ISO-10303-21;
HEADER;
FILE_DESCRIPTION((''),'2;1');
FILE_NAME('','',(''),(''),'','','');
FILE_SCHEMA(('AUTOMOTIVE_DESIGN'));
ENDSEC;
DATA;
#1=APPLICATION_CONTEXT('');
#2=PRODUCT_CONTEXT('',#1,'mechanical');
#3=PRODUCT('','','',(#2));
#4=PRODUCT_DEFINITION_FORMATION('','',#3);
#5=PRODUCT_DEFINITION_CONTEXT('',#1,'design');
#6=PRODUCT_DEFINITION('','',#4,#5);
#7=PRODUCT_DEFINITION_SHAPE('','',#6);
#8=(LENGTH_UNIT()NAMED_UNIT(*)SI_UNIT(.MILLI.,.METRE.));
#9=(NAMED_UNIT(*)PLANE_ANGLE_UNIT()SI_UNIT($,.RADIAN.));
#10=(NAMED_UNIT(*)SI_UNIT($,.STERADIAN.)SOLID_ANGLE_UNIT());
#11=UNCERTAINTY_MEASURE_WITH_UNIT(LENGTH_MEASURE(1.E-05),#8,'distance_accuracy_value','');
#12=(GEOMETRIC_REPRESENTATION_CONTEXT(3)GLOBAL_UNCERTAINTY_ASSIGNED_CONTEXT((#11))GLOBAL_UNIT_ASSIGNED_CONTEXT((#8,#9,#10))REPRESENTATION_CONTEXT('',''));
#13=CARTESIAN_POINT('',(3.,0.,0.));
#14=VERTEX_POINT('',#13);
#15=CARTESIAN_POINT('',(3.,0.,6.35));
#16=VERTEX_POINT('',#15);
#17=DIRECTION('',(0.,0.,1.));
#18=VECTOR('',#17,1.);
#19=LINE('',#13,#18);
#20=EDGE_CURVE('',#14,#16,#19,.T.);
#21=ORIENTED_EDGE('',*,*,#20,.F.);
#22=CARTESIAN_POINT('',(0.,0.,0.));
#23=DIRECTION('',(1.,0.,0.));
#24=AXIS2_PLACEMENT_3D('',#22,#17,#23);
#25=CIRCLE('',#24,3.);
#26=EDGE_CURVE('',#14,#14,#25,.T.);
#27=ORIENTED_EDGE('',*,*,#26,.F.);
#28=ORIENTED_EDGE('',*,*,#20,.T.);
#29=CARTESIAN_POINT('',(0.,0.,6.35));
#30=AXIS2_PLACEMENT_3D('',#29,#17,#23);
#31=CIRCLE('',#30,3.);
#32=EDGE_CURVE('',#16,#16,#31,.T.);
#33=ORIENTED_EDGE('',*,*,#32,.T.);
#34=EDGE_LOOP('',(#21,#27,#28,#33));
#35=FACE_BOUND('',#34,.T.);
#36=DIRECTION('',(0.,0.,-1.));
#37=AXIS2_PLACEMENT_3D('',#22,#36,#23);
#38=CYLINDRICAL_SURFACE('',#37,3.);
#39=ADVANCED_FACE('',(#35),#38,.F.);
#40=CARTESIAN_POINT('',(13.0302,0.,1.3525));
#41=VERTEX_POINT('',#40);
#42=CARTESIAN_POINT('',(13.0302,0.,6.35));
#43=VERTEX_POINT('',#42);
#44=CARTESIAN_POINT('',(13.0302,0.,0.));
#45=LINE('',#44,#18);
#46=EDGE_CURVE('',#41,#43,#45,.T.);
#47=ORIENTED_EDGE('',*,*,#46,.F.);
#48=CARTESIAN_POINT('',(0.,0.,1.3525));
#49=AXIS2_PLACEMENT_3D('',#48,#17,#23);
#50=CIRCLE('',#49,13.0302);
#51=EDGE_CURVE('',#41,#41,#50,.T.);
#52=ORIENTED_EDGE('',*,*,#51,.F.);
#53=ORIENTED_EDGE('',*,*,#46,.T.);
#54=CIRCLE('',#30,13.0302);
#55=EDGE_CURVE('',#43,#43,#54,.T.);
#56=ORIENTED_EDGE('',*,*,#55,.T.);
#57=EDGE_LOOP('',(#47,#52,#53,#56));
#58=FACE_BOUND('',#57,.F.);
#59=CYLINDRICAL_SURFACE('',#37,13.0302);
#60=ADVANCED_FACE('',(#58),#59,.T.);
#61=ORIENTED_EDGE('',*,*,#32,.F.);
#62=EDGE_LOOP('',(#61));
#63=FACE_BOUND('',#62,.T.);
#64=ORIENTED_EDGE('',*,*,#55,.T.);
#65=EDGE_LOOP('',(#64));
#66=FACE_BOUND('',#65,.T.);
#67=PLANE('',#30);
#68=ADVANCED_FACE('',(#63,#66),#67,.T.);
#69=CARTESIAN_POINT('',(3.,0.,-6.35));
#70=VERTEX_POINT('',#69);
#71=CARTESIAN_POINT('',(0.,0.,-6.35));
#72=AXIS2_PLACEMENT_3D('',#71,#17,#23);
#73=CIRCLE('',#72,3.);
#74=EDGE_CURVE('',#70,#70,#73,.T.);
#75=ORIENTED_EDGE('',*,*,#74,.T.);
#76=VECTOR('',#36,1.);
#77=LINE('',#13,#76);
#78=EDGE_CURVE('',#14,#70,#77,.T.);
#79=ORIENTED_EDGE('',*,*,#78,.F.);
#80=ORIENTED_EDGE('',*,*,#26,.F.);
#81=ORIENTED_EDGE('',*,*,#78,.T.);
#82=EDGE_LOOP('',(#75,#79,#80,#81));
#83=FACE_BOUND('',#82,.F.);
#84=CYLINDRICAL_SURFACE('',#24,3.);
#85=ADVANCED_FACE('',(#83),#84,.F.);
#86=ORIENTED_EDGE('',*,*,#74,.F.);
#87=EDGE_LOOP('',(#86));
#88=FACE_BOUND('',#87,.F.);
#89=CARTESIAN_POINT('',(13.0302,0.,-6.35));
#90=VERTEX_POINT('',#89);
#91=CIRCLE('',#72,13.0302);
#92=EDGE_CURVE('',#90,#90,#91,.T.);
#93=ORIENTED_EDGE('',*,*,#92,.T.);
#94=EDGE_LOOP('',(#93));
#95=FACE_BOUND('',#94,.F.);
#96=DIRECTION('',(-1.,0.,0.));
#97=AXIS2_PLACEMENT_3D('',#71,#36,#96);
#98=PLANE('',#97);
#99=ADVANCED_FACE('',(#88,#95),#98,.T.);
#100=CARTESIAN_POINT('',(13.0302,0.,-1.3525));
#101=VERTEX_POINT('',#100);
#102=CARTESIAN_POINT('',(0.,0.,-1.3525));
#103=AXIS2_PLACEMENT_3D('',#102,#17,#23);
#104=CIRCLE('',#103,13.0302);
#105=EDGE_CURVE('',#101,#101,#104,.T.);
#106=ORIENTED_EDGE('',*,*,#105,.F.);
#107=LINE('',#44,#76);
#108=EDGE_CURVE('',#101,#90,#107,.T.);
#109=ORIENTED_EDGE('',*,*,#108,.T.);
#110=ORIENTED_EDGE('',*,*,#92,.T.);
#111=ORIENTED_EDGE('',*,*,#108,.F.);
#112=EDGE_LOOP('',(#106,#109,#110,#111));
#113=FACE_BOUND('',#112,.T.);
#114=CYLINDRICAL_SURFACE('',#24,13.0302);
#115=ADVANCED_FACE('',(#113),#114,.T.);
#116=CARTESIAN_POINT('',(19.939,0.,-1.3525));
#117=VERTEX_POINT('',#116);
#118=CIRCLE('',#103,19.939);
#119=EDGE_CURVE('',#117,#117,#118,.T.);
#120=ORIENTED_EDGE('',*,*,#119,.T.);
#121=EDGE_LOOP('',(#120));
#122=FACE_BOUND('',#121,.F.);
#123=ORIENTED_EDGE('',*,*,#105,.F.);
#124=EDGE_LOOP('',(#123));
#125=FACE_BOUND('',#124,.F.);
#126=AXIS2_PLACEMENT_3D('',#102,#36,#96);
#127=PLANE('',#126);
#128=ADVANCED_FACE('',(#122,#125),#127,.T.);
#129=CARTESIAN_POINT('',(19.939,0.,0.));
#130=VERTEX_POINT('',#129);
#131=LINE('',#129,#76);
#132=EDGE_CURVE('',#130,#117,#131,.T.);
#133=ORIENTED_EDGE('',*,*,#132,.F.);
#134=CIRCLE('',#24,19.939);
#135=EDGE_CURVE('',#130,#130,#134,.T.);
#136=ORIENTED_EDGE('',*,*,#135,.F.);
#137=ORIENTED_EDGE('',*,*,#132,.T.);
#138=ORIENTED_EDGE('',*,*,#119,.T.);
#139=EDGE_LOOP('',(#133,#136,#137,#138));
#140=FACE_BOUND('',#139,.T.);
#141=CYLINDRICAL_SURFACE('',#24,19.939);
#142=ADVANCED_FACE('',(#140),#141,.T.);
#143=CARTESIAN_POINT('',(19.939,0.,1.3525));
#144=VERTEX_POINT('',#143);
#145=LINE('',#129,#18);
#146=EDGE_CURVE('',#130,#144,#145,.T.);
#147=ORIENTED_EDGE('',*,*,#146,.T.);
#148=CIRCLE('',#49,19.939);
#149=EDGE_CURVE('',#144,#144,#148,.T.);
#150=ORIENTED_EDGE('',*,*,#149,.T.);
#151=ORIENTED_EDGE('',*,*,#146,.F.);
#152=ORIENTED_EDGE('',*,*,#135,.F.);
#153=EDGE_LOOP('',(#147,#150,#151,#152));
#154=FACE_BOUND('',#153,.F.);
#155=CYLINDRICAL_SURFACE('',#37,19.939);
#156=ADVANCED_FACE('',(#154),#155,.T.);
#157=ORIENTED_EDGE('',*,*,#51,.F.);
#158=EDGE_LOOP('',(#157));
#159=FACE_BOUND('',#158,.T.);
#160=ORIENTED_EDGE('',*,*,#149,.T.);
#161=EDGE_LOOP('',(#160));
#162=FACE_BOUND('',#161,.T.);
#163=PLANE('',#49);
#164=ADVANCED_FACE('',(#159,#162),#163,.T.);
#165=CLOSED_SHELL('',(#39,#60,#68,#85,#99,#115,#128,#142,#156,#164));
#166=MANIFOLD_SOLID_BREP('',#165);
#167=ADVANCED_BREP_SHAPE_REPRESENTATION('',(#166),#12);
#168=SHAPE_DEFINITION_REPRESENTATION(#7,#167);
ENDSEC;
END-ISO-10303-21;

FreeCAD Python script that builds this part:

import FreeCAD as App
import Part
import Sketcher

V = App.Vector
Q = App.Units.Quantity

doc = App.newDocument("Part")
body = doc.addObject("PartDesign::Body", "Body")

# Sketch on XY plane
sketch1 = body.newObject("Sketcher::SketchObject", "Sketch")
sketch1.AttachmentSupport = (doc.getObject("XY_Plane"), [""])
sketch1.MapMode = "FlatFace"
sketch1.addGeometry(Part.Circle(V(0, 0, 0), V(0, 0, 1), 13), False)
sketch1.addGeometry(Part.Circle(V(0, 0, 0), V(0, 0, 1), 3), False)
sketch1.addConstraint(Sketcher.Constraint("Coincident", 0, 3, -1, 1))
sketch1.addConstraint(Sketcher.Constraint("Coincident", 1, 3, -1, 1))
sketch1.addConstraint(Sketcher.Constraint("Diameter", 0, Q("1.026 in")))
sketch1.addConstraint(Sketcher.Constraint("Diameter", 1, 6.0))
pad1 = body.newObject("PartDesign::Pad", "Pad")
pad1.Profile = sketch1
pad1.Length = Q("0.25 in")

# Sketch on XY plane
sketch2 = body.newObject("Sketcher::SketchObject", "Sketch001")
sketch2.AttachmentSupport = (doc.getObject("XY_Plane"), [""])
sketch2.MapMode = "FlatFace"
sketch2.addGeometry(Part.Circle(V(0, 0, 0), V(0, 0, 1), 20), False)
sketch2.addGeometry(Part.Circle(V(0, 0, 0), V(0, 0, 1), 13), False)
sketch2.addConstraint(Sketcher.Constraint("Coincident", 0, 3, -1, 1))
sketch2.addConstraint(Sketcher.Constraint("Coincident", 1, 3, -1, 1))
sketch2.addConstraint(Sketcher.Constraint("Diameter", 0, Q("1.57 in")))
sketch2.addConstraint(Sketcher.Constraint("Diameter", 1, Q("1.026 in")))
pad2 = body.newObject("PartDesign::Pad", "Pad001")
pad2.Profile = sketch2
pad2.Length = 1.3525
doc.recompute()

mirrored = body.newObject("PartDesign::Mirrored", "Mirrored")
mirrored.TransformMode = "Transform body"
mirrored.MirrorPlane = (doc.getObject("XY_Plane"), [""])
body.Tip = mirrored

doc.recompute()
